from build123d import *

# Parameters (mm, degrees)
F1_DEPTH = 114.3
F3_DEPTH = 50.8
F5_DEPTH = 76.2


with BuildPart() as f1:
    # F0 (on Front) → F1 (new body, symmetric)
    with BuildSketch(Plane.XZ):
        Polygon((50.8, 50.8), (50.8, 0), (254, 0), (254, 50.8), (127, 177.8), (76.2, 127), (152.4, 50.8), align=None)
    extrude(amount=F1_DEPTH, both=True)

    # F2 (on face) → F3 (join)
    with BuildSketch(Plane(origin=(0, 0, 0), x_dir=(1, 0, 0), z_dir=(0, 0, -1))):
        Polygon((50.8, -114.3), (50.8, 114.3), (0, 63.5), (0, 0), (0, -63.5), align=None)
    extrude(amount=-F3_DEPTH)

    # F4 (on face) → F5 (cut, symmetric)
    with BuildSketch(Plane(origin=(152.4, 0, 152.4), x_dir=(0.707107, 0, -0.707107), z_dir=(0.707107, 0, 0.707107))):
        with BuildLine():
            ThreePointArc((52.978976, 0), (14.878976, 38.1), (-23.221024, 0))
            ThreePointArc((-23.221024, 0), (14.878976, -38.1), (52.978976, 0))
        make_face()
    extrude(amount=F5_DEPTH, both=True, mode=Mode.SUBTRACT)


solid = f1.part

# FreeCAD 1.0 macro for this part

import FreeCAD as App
import Part
import Sketcher

V = App.Vector
Q = App.Units.Quantity


def add_polygon(sketch, points):
    """Adds a closed chain of lines whose ends are joined by coincident constraints."""
    first, n = sketch.GeometryCount, len(points)
    for a, b in zip(points, points[1:] + points[:1]):
        sketch.addGeometry(Part.LineSegment(App.Vector(*a, 0), App.Vector(*b, 0)), False)
    for i in range(n):
        sketch.addConstraint(Sketcher.Constraint("Coincident", first + i, 2, first + (i + 1) % n, 1))

doc = App.newDocument("Part")
body = doc.addObject("PartDesign::Body", "Body")

# Sketch on XZ plane
sketch1 = doc.addObject("Sketcher::SketchObject", "Sketch")
body.addObject(sketch1)
sketch1.AttachmentSupport = (doc.XZ_Plane, [""])
sketch1.MapMode = "FlatFace"
add_polygon(sketch1, [(51, 51), (51, 0), (254, 0), (254, 51), (127, 178), (76, 127), (152, 51)])  # lines 0-6
sketch1.addConstraint([
    Sketcher.Constraint("Vertical", 0),
    Sketcher.Constraint("Horizontal", 1),
    Sketcher.Constraint("Vertical", 2),
    Sketcher.Constraint("Horizontal", 6),
    Sketcher.Constraint("PointOnObject", 0, 2, -1),
    Sketcher.Constraint("Perpendicular", 3, 4),
    Sketcher.Constraint("Perpendicular", 4, 5),
    Sketcher.Constraint("Horizontal", 2, 2, 5, 2),
    Sketcher.Constraint("DistanceX", 1, 1, 1, 2, Q("8 in")),
    Sketcher.Constraint("DistanceX", 6, 2, 6, 1, Q("4 in")),
    Sketcher.Constraint("DistanceY", 0, 2, 0, 1, Q("2 in")),
    Sketcher.Constraint("DistanceX", -1, 1, 0, 2, Q("2 in")),
    Sketcher.Constraint("DistanceX", -1, 1, 3, 2, Q("5 in")),
    Sketcher.Constraint("DistanceY", -1, 1, 3, 2, Q("7 in")),
])
pad1 = doc.addObject("PartDesign::Pad", "Pad")
body.addObject(pad1)
pad1.Profile = sketch1
pad1.Length = Q("9 in")
pad1.Midplane = True

# Sketch on XY plane
sketch2 = doc.addObject("Sketcher::SketchObject", "Sketch001")
body.addObject(sketch2)
sketch2.AttachmentSupport = (doc.XY_Plane, [""])
sketch2.MapMode = "FlatFace"
add_polygon(sketch2, [(51, 114), (51, -114), (0, -64), (0, 64)])  # lines 0-3
sketch2.addConstraint([
    Sketcher.Constraint("Vertical", 0),
    Sketcher.Constraint("Vertical", 2),
    Sketcher.Constraint("Symmetric", 1, 2, 2, 2, -1, 1),
    Sketcher.Constraint("Perpendicular", 1, 3),
    Sketcher.Constraint("Equal", 1, 3),
    Sketcher.Constraint("DistanceY", 0, 2, 0, 1, Q("9 in")),
    Sketcher.Constraint("DistanceY", 2, 1, 2, 2, Q("5 in")),
])
pad2 = doc.addObject("PartDesign::Pad", "Pad001")
body.addObject(pad2)
pad2.Profile = sketch2
pad2.Length = Q("2 in")

# Sketch on an angled plane
sketch3 = doc.addObject("Sketcher::SketchObject", "Sketch002")
body.addObject(sketch3)
sketch3.Placement = App.Placement(V(152.4, 0, 152.4), App.Rotation(V(0.707106781, 0, -0.707106781), V(0, 0.999999999, 0), V(0.707106781, 0, 0.707106781), "ZXY"))
sketch3.addGeometry(Part.Circle(V(15, 0, 0), V(0, 0, 1), 38), False)
sketch3.addConstraint([
    Sketcher.Constraint("PointOnObject", 0, 3, -1),
    Sketcher.Constraint("Diameter", 0, Q("3 in")),
    Sketcher.Constraint("DistanceX", -1, 1, 0, 3, Q("14.878976 mm")),
])
pocket1 = doc.addObject("PartDesign::Pocket", "Pocket")
body.addObject(pocket1)
pocket1.Profile = sketch3
pocket1.Length = Q("6 in")
pocket1.Midplane = True

doc.recompute()
